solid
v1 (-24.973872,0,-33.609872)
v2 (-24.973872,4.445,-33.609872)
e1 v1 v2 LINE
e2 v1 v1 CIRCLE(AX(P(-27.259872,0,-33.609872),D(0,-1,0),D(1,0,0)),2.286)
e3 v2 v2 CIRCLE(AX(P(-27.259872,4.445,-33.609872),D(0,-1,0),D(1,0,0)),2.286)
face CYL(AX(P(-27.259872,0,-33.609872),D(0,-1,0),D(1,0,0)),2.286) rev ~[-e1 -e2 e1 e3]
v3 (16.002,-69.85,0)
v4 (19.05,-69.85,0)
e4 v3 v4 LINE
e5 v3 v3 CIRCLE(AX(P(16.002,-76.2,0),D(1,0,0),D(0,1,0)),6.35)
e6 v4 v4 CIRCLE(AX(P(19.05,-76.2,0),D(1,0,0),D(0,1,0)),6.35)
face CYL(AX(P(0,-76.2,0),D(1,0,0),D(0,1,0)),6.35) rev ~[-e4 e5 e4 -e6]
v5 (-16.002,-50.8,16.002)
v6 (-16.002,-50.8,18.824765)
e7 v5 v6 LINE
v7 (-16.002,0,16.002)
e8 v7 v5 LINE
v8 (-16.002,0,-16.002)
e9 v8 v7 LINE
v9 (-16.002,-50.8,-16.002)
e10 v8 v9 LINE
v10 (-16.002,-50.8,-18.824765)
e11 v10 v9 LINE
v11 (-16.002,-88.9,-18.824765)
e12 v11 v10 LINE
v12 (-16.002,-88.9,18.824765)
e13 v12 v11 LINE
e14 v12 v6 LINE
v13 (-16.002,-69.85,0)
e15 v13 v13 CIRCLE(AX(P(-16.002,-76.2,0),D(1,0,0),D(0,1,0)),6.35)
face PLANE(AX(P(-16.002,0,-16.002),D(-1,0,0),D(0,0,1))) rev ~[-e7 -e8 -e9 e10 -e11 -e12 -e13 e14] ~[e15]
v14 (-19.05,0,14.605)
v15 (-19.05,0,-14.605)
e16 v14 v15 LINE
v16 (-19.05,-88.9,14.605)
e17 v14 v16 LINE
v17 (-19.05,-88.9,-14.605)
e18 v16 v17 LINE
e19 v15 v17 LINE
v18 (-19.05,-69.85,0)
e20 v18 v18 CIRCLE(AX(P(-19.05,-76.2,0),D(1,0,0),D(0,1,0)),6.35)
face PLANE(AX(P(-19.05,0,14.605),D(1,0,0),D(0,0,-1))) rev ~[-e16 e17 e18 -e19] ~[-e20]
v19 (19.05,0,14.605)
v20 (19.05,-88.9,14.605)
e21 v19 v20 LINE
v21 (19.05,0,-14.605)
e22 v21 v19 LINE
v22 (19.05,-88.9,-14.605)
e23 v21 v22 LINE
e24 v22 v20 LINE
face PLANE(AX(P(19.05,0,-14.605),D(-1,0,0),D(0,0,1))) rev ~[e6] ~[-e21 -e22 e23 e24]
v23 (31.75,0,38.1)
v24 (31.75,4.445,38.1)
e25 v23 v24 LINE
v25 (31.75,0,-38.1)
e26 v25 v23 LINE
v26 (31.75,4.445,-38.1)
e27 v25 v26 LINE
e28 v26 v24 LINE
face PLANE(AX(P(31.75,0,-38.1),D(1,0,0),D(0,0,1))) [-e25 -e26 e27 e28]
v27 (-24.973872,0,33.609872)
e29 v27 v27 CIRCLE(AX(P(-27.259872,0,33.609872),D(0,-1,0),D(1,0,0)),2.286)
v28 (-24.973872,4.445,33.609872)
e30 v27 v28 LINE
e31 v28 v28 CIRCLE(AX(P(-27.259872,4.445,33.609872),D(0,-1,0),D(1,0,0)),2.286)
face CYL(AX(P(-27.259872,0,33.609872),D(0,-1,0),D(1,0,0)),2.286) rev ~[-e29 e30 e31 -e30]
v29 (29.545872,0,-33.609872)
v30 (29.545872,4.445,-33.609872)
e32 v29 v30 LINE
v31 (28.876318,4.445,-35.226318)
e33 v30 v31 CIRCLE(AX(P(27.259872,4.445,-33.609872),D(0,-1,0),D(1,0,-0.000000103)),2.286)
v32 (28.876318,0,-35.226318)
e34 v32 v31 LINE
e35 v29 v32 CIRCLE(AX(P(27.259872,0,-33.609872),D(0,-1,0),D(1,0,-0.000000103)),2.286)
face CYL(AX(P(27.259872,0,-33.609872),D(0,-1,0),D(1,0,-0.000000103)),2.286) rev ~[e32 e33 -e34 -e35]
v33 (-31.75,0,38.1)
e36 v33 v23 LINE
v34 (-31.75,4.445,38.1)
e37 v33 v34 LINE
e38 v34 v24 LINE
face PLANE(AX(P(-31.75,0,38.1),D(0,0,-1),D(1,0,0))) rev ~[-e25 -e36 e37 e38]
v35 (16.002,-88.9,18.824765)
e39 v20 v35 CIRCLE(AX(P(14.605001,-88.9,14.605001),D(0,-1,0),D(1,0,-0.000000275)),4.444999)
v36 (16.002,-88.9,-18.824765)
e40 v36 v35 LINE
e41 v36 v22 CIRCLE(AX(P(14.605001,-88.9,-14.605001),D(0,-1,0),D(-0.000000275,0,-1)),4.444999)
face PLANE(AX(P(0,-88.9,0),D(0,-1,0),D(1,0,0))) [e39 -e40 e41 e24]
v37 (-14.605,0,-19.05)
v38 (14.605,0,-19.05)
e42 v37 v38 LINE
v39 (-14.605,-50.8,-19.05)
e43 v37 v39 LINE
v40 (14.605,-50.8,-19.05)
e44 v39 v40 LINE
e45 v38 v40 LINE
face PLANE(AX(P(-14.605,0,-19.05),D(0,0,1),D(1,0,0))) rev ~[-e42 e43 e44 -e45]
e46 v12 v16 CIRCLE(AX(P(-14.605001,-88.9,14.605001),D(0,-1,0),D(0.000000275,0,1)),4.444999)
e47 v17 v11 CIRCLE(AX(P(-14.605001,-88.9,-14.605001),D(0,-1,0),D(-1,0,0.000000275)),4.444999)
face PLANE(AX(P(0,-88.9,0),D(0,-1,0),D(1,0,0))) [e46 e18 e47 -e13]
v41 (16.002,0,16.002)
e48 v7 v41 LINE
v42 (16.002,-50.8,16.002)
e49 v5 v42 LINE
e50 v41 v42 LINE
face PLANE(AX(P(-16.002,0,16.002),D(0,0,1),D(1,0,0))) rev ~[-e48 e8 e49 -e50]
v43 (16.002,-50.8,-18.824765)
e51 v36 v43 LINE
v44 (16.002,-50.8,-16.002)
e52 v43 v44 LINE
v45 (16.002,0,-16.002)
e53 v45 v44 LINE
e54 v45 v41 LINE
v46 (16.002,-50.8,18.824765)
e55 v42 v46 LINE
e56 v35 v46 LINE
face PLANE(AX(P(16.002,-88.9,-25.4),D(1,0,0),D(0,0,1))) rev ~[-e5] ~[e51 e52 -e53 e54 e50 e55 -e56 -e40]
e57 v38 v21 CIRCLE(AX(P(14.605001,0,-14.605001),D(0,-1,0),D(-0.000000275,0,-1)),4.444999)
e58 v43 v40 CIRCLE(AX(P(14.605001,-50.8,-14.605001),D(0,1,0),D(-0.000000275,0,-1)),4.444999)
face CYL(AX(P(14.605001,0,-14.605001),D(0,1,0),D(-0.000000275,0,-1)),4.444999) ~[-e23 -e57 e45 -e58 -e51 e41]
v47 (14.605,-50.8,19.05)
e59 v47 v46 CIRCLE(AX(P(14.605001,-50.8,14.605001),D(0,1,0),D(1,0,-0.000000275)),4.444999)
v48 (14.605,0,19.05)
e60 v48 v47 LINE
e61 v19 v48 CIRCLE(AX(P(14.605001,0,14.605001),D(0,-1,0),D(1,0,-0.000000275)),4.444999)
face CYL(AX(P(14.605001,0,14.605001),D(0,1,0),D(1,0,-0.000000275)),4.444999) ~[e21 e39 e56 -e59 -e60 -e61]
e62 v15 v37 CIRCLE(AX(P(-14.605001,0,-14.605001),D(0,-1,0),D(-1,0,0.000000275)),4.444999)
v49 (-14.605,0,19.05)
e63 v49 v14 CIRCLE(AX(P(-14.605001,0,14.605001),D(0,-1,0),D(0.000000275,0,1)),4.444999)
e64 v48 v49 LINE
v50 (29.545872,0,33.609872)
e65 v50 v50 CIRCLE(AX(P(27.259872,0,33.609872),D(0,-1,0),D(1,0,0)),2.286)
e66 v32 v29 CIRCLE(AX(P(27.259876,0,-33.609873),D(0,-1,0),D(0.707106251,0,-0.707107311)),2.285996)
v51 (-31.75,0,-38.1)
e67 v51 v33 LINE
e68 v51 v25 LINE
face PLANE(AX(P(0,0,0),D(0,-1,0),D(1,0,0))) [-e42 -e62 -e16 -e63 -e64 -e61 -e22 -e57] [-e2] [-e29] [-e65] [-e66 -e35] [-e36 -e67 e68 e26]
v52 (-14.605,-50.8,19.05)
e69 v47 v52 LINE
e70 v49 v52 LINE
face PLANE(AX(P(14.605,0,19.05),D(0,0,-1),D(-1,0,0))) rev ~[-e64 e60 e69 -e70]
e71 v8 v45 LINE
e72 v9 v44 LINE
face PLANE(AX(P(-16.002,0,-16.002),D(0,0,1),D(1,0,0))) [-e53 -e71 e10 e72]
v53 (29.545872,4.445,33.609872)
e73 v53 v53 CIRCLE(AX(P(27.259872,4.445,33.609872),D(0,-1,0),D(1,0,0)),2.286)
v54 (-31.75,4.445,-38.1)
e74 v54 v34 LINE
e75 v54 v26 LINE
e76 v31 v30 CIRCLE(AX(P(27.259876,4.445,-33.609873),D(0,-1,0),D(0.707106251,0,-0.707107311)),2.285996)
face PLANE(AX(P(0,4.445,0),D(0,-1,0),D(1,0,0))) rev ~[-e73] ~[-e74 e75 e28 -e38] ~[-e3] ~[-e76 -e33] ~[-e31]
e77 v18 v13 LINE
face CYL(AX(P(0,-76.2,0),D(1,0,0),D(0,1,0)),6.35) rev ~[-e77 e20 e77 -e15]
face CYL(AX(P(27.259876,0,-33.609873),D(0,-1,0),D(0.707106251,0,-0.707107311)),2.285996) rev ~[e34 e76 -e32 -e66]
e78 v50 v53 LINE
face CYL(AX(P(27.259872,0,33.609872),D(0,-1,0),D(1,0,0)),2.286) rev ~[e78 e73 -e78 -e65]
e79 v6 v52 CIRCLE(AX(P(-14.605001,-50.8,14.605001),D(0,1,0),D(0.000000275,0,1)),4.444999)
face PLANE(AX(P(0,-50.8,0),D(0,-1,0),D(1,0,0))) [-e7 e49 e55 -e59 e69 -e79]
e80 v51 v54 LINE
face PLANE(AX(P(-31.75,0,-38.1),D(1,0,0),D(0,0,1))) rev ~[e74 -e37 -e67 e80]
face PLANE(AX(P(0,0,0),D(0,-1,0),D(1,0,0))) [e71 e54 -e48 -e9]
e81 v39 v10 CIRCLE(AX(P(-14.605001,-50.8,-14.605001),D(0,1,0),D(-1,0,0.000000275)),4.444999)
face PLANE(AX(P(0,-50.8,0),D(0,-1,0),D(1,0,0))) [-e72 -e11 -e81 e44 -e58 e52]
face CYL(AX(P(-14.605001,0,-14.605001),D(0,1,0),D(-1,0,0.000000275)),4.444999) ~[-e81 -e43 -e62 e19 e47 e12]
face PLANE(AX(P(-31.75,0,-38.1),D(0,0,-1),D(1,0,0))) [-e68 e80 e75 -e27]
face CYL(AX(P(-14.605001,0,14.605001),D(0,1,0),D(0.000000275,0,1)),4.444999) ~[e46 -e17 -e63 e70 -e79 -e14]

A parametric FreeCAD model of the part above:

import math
import FreeCAD as App
import Part
import Sketcher

V = App.Vector
Q = App.Units.Quantity

doc = App.newDocument("Part")
params = doc.addObject("Spreadsheet::Sheet", "Params")
for row, (alias, value) in enumerate([
    ("sketch1_radius", "0.175 in"),
    ("sketch1_width", "1.15 in"),
    ("sketch1_width2", "1.26 in"),
    ("pad1_length", "3.5 in"),
    ("sketch2_diameter", "0.5 in"),
    ("pocket1_length", "1.92 in"),
    ("sketch3_height", "2 in"),
    ("sketch3_width", "1.26 in"),
    ("pocket2_length", "1.5 in"),
    ("sketch4_height", "3 in"),
    ("sketch4_width", "2.5 in"),
    ("pad2_length", "0.175 in"),
    ("sketch5_diameter", "0.18 in"),
    ("pocket3_length", "1 in"),
], start=1):
    params.set(f"A{row}", alias)
    params.set(f"B{row}", "=" + value)
    params.setAlias(f"B{row}", alias)

body = doc.addObject("PartDesign::Body", "Body")

sketch1 = body.newObject("Sketcher::SketchObject", "Sketch")
sketch1.AttachmentSupport = (doc.getObject("XZ_Plane"), [""])
sketch1.MapMode = "FlatFace"
sketch1.addGeometry([
    Part.ArcOfCircle(Part.Circle(V(14.6, 14.6, 0), V(0, 0, 1), 4.4), math.radians(0), math.radians(90)),
    Part.LineSegment(V(14.6, 19.1, 0), V(-14.6, 19.1, 0)),
    Part.ArcOfCircle(Part.Circle(V(-14.6, 14.6, 0), V(0, 0, 1), 4.4), math.radians(90), math.radians(180)),
    Part.LineSegment(V(-19.1, 14.6, 0), V(-19.1, -14.6, 0)),
    Part.ArcOfCircle(Part.Circle(V(-14.6, -14.6, 0), V(0, 0, 1), 4.4), math.radians(180), math.radians(270)),
    Part.LineSegment(V(-14.6, -19.1, 0), V(14.6, -19.1, 0)),
    Part.ArcOfCircle(Part.Circle(V(14.6, -14.6, 0), V(0, 0, 1), 4.4), math.radians(-90), math.radians(0)),
    Part.LineSegment(V(19.1, -14.6, 0), V(19.1, 14.6, 0)),
    Part.LineSegment(V(16, -16, 0), V(-16, -16, 0)),
    Part.LineSegment(V(-16, -16, 0), V(-16, 16, 0)),
    Part.LineSegment(V(-16, 16, 0), V(16, 16, 0)),
    Part.LineSegment(V(16, 16, 0), V(16, -16, 0)),
], False)
sketch1.addConstraint([
    Sketcher.Constraint("Tangent", 0, 2, 1, 1),
    Sketcher.Constraint("Tangent", 1, 2, 2, 1),
    Sketcher.Constraint("Tangent", 2, 2, 3, 1),
    Sketcher.Constraint("Tangent", 3, 2, 4, 1),
    Sketcher.Constraint("Tangent", 4, 2, 5, 1),
    Sketcher.Constraint("Tangent", 5, 2, 6, 1),
    Sketcher.Constraint("Tangent", 6, 2, 7, 1),
    Sketcher.Constraint("Tangent", 7, 2, 0, 1),
    Sketcher.Constraint("Coincident", 8, 2, 9, 1),
    Sketcher.Constraint("Coincident", 9, 2, 10, 1),
    Sketcher.Constraint("Coincident", 10, 2, 11, 1),
    Sketcher.Constraint("Coincident", 11, 2, 8, 1),
    Sketcher.Constraint("Horizontal", 1),
    Sketcher.Constraint("Vertical", 3),
    Sketcher.Constraint("Horizontal", 5),
    Sketcher.Constraint("Vertical", 7),
    Sketcher.Constraint("Horizontal", 8),
    Sketcher.Constraint("Vertical", 9),
    Sketcher.Constraint("Horizontal", 10),
    Sketcher.Constraint("Vertical", 11),
    Sketcher.Constraint("Equal", 0, 2),
    Sketcher.Constraint("Equal", 2, 4),
    Sketcher.Constraint("Equal", 4, 6),
    Sketcher.Constraint("Symmetric", 0, 3, 4, 3, -1, 1),
    Sketcher.Constraint("Symmetric", 8, 2, 10, 2, -1, 1),
    Sketcher.Constraint("Equal", 5, 3),
    Sketcher.Constraint("Equal", 10, 9),
    Sketcher.Constraint("Radius", 0, Q("0.175 in")),
    Sketcher.Constraint("DistanceX", 1, 2, 1, 1, Q("1.15 in")),
    Sketcher.Constraint("DistanceX", 8, 2, 8, 1, Q("1.26 in")),
])
sketch1.setExpression("Constraints[27]", "Params.sketch1_radius")
sketch1.setExpression("Constraints[28]", "Params.sketch1_width")
sketch1.setExpression("Constraints[29]", "Params.sketch1_width2")
pad1 = body.newObject("PartDesign::Pad", "Pad")
pad1.Profile = sketch1
pad1.setExpression("Length", "Params.pad1_length")

sketch2 = body.newObject("Sketcher::SketchObject", "Sketch001")
sketch2.AttachmentSupport = (doc.getObject("YZ_Plane"), [""])
sketch2.MapMode = "FlatFace"
sketch2.addGeometry(Part.Circle(V(-76, 0, 0), V(0, 0, 1), 6), False)
sketch2.addConstraint([
    Sketcher.Constraint("PointOnObject", 0, 3, -1),
    Sketcher.Constraint("Diameter", 0, Q("0.5 in")),
    Sketcher.Constraint("DistanceX", 0, 3, -1, 1, Q("3 in")),
])
sketch2.setExpression("Constraints[1]", "Params.sketch2_diameter")
pocket1 = body.newObject("PartDesign::Pocket", "Pocket")
pocket1.Profile = sketch2
pocket1.setExpression("Length", "Params.pocket1_length")
pocket1.Midplane = True

sketch3 = body.newObject("Sketcher::SketchObject", "Sketch002")
sketch3.AttachmentSupport = (doc.getObject("XZ_Plane"), [""])
sketch3.MapMode = "FlatFace"
sketch3.AttachmentOffset = App.Placement(V(0, 0, 3.5 * 25.4), App.Rotation())
sketch3.addGeometry([
    Part.LineSegment(V(-16, 25, 0), V(-16, -25, 0)),
    Part.LineSegment(V(-16, -25, 0), V(16, -25, 0)),
    Part.LineSegment(V(16, -25, 0), V(16, 25, 0)),
    Part.LineSegment(V(16, 25, 0), V(-16, 25, 0)),
], False)
sketch3.addConstraint([
    Sketcher.Constraint("Coincident", 0, 2, 1, 1),
    Sketcher.Constraint("Coincident", 1, 2, 2, 1),
    Sketcher.Constraint("Coincident", 2, 2, 3, 1),
    Sketcher.Constraint("Coincident", 3, 2, 0, 1),
    Sketcher.Constraint("Vertical", 0),
    Sketcher.Constraint("Horizontal", 1),
    Sketcher.Constraint("Vertical", 2),
    Sketcher.Constraint("Horizontal", 3),
    Sketcher.Constraint("Symmetric", 0, 2, 2, 2, -1, 1),
    Sketcher.Constraint("DistanceY", 0, 2, 0, 1, Q("2 in")),
    Sketcher.Constraint("DistanceX", 1, 1, 1, 2, Q("1.26 in")),
])
sketch3.setExpression("Constraints[9]", "Params.sketch3_height")
sketch3.setExpression("Constraints[10]", "Params.sketch3_width")
pocket2 = body.newObject("PartDesign::Pocket", "Pocket001")
pocket2.Profile = sketch3
pocket2.setExpression("Length", "Params.pocket2_length")

sketch4 = body.newObject("Sketcher::SketchObject", "Sketch003")
sketch4.AttachmentSupport = (doc.getObject("XZ_Plane"), [""])
sketch4.MapMode = "FlatFace"
sketch4.addGeometry([
    Part.LineSegment(V(-32, 38, 0), V(-32, -38, 0)),
    Part.LineSegment(V(-32, -38, 0), V(32, -38, 0)),
    Part.LineSegment(V(32, -38, 0), V(32, 38, 0)),
    Part.LineSegment(V(32, 38, 0), V(-32, 38, 0)),
], False)
sketch4.addConstraint([
    Sketcher.Constraint("Coincident", 0, 2, 1, 1),
    Sketcher.Constraint("Coincident", 1, 2, 2, 1),
    Sketcher.Constraint("Coincident", 2, 2, 3, 1),
    Sketcher.Constraint("Coincident", 3, 2, 0, 1),
    Sketcher.Constraint("Vertical", 0),
    Sketcher.Constraint("Horizontal", 1),
    Sketcher.Constraint("Vertical", 2),
    Sketcher.Constraint("Horizontal", 3),
    Sketcher.Constraint("Symmetric", 0, 2, 2, 2, -1, 1),
    Sketcher.Constraint("DistanceY", 0, 2, 0, 1, Q("3 in")),
    Sketcher.Constraint("DistanceX", 1, 1, 1, 2, Q("2.5 in")),
])
sketch4.setExpression("Constraints[9]", "Params.sketch4_height")
sketch4.setExpression("Constraints[10]", "Params.sketch4_width")
pad2 = body.newObject("PartDesign::Pad", "Pad001")
pad2.Profile = sketch4
pad2.setExpression("Length", "Params.pad2_length")
pad2.Reversed = True

sketch5 = body.newObject("Sketcher::SketchObject", "Sketch004")
sketch5.AttachmentSupport = (doc.getObject("XZ_Plane"), [""])
sketch5.MapMode = "FlatFace"
sketch5.addGeometry([
    Part.Circle(V(27.3, 33.6, 0), V(0, 0, 1), 2.3),
    Part.ArcOfCircle(Part.Circle(V(27.3, -33.6, 0), V(0, 0, 1), 2.3), math.radians(-45), math.radians(0)),
    Part.ArcOfCircle(Part.Circle(V(27.3, -33.6, 0), V(0, 0, 1), 2.3), math.radians(0), math.radians(315)),
    Part.Circle(V(-27.3, -33.6, 0), V(0, 0, 1), 2.3),
    Part.Circle(V(-27.3, 33.6, 0), V(0, 0, 1), 2.3),
], False)
sketch5.addConstraint([
    Sketcher.Constraint("Tangent", 1, 1, 2, 2),
    Sketcher.Constraint("Coincident", 2, 1, 1, 2),
    Sketcher.Constraint("Equal", 0, 2),
    Sketcher.Constraint("Equal", 2, 3),
    Sketcher.Constraint("Equal", 3, 4),
    Sketcher.Constraint("Symmetric", 0, 3, 3, 3, -1, 1),
    Sketcher.Constraint("Symmetric", 1, 3, 4, 3, -1, 1),
    Sketcher.Constraint("Symmetric", 1, 3, 3, 3, -2),
    Sketcher.Constraint("Horizontal", 3, 3, 2, 1),
    Sketcher.Constraint("Diameter", 0, Q("0.18 in")),
    Sketcher.Constraint("DistanceX", -1, 1, 2, 3, 27.259872),
    Sketcher.Constraint("DistanceY", 2, 3, -1, 1, 33.609872),
    Sketcher.Constraint("DistanceX", 3, 3, 1, 1, 56.13619),
])
sketch5.setExpression("Constraints[9]", "Params.sketch5_diameter")
pocket3 = body.newObject("PartDesign::Pocket", "Pocket002")
pocket3.Profile = sketch5
pocket3.setExpression("Length", "Params.pocket3_length")

doc.recompute()
